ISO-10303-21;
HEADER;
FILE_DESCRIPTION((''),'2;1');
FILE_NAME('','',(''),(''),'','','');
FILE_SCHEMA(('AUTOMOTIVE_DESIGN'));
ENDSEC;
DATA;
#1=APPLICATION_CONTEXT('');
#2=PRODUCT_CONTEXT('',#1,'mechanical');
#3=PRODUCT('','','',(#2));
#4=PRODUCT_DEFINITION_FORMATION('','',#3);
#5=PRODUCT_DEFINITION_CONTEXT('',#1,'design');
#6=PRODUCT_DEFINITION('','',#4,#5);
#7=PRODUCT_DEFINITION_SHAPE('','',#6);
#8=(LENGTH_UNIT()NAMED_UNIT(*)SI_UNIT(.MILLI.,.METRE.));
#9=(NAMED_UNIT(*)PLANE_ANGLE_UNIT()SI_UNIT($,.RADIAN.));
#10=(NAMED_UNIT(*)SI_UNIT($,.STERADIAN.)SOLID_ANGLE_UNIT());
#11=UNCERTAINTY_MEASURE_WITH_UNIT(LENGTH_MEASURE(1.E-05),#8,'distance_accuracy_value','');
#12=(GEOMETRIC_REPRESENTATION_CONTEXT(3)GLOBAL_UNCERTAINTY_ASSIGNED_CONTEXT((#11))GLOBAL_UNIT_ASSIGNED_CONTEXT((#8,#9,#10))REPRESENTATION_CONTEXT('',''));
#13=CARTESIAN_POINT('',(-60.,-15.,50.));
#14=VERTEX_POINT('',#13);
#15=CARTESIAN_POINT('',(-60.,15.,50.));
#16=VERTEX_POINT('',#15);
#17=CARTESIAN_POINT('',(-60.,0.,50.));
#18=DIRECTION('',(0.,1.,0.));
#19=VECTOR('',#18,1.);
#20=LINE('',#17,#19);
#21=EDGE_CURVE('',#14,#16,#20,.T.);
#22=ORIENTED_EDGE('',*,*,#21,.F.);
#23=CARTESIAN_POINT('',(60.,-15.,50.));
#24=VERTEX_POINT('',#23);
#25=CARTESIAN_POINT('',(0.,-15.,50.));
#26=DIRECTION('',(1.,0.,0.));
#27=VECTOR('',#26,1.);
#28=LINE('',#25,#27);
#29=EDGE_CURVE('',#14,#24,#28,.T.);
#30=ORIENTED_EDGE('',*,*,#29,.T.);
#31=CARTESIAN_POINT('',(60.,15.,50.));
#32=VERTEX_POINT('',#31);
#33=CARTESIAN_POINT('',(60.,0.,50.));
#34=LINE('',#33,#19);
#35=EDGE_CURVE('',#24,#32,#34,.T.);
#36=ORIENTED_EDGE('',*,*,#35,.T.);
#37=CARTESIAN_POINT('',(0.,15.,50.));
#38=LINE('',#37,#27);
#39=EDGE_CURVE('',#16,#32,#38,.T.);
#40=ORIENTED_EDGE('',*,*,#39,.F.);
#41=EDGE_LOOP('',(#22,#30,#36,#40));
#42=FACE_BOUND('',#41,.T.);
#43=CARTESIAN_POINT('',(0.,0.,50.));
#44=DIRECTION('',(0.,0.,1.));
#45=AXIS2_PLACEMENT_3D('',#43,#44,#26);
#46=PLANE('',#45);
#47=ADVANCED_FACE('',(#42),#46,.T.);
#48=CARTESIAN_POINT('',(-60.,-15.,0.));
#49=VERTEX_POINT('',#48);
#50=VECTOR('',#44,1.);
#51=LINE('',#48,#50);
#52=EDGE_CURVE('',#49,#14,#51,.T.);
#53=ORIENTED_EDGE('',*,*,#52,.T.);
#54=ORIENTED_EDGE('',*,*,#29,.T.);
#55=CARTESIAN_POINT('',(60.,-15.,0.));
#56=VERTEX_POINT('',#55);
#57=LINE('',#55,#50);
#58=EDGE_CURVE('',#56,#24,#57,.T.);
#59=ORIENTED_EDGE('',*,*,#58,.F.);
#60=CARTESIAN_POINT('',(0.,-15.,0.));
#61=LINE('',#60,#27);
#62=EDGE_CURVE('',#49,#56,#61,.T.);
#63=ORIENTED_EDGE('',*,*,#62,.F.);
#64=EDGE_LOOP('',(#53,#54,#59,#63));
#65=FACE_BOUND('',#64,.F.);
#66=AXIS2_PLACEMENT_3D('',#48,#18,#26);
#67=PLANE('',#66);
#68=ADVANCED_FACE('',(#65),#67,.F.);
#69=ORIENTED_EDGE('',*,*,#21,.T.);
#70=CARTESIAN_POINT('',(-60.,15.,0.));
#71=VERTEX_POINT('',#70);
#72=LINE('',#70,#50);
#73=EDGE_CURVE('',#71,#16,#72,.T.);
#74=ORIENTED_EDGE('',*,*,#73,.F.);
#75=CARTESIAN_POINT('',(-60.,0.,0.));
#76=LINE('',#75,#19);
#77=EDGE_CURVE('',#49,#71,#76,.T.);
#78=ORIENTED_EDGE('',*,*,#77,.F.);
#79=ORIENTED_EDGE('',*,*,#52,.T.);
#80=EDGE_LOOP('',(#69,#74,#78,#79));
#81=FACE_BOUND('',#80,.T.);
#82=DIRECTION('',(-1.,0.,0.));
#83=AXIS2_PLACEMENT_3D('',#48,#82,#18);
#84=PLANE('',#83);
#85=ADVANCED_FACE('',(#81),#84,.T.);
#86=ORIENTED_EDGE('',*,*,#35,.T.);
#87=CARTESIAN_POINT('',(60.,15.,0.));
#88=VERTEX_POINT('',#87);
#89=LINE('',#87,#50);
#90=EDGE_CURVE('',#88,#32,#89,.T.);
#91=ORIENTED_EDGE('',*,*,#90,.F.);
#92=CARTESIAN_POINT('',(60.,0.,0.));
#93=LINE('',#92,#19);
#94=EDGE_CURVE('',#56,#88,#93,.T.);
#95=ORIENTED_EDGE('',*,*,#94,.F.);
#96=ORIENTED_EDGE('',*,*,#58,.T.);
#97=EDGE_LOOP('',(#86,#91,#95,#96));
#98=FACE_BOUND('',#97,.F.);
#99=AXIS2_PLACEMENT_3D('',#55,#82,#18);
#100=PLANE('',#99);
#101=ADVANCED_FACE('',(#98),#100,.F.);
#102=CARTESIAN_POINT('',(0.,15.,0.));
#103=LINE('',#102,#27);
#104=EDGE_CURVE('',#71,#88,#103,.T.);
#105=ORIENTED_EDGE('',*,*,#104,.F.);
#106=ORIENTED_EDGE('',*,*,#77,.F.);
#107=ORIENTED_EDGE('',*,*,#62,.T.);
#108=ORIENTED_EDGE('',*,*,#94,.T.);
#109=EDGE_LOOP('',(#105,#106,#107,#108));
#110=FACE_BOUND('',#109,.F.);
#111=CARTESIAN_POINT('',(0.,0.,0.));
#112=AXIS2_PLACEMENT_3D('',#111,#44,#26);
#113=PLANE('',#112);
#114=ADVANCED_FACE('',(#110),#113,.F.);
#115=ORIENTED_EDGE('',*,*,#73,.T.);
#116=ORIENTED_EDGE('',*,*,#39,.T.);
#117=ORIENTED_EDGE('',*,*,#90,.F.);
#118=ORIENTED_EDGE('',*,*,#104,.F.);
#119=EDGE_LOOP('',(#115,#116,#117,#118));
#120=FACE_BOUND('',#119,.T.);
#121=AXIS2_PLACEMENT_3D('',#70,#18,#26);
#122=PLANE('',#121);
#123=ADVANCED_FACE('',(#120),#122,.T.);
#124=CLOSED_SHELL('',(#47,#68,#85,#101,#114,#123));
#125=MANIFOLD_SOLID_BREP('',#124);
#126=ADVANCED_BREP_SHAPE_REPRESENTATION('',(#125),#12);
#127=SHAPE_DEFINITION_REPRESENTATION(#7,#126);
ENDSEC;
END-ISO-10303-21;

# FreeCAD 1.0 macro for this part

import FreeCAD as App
import Part
import Sketcher

V = App.Vector

doc = App.newDocument("Part")
body = doc.addObject("PartDesign::Body", "Body")

# Sketch on XY plane
sketch1 = doc.addObject("Sketcher::SketchObject", "Sketch")
body.addObject(sketch1)
sketch1.AttachmentSupport = (doc.XY_Plane, [""])
sketch1.MapMode = "FlatFace"
sketch1.addGeometry([
    Part.LineSegment(V(-60, 15, 0), V(-60, -15, 0)),
    Part.LineSegment(V(-60, -15, 0), V(60, -15, 0)),
    Part.LineSegment(V(60, -15, 0), V(60, 15, 0)),
    Part.LineSegment(V(60, 15, 0), V(-60, 15, 0)),
], False)
sketch1.addConstraint([
    Sketcher.Constraint("Coincident", 0, 2, 1, 1),
    Sketcher.Constraint("Coincident", 1, 2, 2, 1),
    Sketcher.Constraint("Coincident", 2, 2, 3, 1),
    Sketcher.Constraint("Coincident", 3, 2, 0, 1),
    Sketcher.Constraint("Vertical", 0),
    Sketcher.Constraint("Horizontal", 1),
    Sketcher.Constraint("Vertical", 2),
    Sketcher.Constraint("Horizontal", 3),
    Sketcher.Constraint("Symmetric", 0, 2, 2, 2, -1, 1),
    Sketcher.Constraint("DistanceX", 1, 1, 1, 2, 120.0),
    Sketcher.Constraint("DistanceY", 0, 2, 0, 1, 30.0),
])
pad1 = doc.addObject("PartDesign::Pad", "Pad")
body.addObject(pad1)
pad1.Profile = sketch1
pad1.Length = 50

doc.recompute()
